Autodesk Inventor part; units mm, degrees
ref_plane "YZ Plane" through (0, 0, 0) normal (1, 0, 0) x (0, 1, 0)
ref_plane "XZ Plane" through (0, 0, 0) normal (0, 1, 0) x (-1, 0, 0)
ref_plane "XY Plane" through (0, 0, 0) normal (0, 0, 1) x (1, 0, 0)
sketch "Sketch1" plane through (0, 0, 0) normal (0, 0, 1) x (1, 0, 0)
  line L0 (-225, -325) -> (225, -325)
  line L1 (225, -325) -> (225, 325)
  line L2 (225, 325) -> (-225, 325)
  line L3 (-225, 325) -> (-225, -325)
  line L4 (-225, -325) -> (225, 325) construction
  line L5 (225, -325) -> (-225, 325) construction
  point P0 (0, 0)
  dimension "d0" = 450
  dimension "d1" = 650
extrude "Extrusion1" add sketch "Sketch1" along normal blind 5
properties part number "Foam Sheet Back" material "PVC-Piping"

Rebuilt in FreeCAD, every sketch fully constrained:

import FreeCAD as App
import Part
import Sketcher
from FreeCAD import Vector
Q = App.Units.Quantity

doc = App.newDocument("Part")
params = doc.addObject("Spreadsheet::Sheet", "Params")
for row, (alias, value) in enumerate([
    ("sketch1_width", "450 mm"),
    ("sketch1_height", "650 mm"),
    ("pad1_length", "5 mm"),
], start=1):
    params.set(f"A{row}", alias)
    params.set(f"B{row}", "=" + value)
    params.setAlias(f"B{row}", alias)

body = doc.addObject("PartDesign::Body", "Body")

sketch1 = body.newObject("Sketcher::SketchObject", "Sketch")
sketch1.AttachmentSupport = (doc.getObject("XY_Plane"), [""])
sketch1.MapMode = "FlatFace"
sketch1.addGeometry(Part.LineSegment(Vector(-225, 325, 0), Vector(-225, -325, 0)), False)
sketch1.addGeometry(Part.LineSegment(Vector(-225, -325, 0), Vector(225, -325, 0)), False)
sketch1.addGeometry(Part.LineSegment(Vector(225, -325, 0), Vector(225, 325, 0)), False)
sketch1.addGeometry(Part.LineSegment(Vector(225, 325, 0), Vector(-225, 325, 0)), False)
sketch1.addConstraint(Sketcher.Constraint("Coincident", 0, 2, 1, 1))
sketch1.addConstraint(Sketcher.Constraint("Coincident", 1, 2, 2, 1))
sketch1.addConstraint(Sketcher.Constraint("Coincident", 2, 2, 3, 1))
sketch1.addConstraint(Sketcher.Constraint("Coincident", 3, 2, 0, 1))
sketch1.addConstraint(Sketcher.Constraint("Vertical", 0))
sketch1.addConstraint(Sketcher.Constraint("Horizontal", 1))
sketch1.addConstraint(Sketcher.Constraint("Vertical", 2))
sketch1.addConstraint(Sketcher.Constraint("Horizontal", 3))
sketch1.addConstraint(Sketcher.Constraint("Symmetric", 0, 2, 2, 2, -1, 1))
sketch1.addConstraint(Sketcher.Constraint("DistanceX", 1, 1, 1, 2, Q("450 mm")))
sketch1.addConstraint(Sketcher.Constraint("DistanceY", 0, 2, 0, 1, Q("650 mm")))
sketch1.setExpression("Constraints[9]", "Params.sketch1_width")
sketch1.setExpression("Constraints[10]", "Params.sketch1_height")
pad1 = body.newObject("PartDesign::Pad", "Pad")
pad1.Profile = sketch1
pad1.setExpression("Length", "Params.pad1_length")

doc.recompute()
